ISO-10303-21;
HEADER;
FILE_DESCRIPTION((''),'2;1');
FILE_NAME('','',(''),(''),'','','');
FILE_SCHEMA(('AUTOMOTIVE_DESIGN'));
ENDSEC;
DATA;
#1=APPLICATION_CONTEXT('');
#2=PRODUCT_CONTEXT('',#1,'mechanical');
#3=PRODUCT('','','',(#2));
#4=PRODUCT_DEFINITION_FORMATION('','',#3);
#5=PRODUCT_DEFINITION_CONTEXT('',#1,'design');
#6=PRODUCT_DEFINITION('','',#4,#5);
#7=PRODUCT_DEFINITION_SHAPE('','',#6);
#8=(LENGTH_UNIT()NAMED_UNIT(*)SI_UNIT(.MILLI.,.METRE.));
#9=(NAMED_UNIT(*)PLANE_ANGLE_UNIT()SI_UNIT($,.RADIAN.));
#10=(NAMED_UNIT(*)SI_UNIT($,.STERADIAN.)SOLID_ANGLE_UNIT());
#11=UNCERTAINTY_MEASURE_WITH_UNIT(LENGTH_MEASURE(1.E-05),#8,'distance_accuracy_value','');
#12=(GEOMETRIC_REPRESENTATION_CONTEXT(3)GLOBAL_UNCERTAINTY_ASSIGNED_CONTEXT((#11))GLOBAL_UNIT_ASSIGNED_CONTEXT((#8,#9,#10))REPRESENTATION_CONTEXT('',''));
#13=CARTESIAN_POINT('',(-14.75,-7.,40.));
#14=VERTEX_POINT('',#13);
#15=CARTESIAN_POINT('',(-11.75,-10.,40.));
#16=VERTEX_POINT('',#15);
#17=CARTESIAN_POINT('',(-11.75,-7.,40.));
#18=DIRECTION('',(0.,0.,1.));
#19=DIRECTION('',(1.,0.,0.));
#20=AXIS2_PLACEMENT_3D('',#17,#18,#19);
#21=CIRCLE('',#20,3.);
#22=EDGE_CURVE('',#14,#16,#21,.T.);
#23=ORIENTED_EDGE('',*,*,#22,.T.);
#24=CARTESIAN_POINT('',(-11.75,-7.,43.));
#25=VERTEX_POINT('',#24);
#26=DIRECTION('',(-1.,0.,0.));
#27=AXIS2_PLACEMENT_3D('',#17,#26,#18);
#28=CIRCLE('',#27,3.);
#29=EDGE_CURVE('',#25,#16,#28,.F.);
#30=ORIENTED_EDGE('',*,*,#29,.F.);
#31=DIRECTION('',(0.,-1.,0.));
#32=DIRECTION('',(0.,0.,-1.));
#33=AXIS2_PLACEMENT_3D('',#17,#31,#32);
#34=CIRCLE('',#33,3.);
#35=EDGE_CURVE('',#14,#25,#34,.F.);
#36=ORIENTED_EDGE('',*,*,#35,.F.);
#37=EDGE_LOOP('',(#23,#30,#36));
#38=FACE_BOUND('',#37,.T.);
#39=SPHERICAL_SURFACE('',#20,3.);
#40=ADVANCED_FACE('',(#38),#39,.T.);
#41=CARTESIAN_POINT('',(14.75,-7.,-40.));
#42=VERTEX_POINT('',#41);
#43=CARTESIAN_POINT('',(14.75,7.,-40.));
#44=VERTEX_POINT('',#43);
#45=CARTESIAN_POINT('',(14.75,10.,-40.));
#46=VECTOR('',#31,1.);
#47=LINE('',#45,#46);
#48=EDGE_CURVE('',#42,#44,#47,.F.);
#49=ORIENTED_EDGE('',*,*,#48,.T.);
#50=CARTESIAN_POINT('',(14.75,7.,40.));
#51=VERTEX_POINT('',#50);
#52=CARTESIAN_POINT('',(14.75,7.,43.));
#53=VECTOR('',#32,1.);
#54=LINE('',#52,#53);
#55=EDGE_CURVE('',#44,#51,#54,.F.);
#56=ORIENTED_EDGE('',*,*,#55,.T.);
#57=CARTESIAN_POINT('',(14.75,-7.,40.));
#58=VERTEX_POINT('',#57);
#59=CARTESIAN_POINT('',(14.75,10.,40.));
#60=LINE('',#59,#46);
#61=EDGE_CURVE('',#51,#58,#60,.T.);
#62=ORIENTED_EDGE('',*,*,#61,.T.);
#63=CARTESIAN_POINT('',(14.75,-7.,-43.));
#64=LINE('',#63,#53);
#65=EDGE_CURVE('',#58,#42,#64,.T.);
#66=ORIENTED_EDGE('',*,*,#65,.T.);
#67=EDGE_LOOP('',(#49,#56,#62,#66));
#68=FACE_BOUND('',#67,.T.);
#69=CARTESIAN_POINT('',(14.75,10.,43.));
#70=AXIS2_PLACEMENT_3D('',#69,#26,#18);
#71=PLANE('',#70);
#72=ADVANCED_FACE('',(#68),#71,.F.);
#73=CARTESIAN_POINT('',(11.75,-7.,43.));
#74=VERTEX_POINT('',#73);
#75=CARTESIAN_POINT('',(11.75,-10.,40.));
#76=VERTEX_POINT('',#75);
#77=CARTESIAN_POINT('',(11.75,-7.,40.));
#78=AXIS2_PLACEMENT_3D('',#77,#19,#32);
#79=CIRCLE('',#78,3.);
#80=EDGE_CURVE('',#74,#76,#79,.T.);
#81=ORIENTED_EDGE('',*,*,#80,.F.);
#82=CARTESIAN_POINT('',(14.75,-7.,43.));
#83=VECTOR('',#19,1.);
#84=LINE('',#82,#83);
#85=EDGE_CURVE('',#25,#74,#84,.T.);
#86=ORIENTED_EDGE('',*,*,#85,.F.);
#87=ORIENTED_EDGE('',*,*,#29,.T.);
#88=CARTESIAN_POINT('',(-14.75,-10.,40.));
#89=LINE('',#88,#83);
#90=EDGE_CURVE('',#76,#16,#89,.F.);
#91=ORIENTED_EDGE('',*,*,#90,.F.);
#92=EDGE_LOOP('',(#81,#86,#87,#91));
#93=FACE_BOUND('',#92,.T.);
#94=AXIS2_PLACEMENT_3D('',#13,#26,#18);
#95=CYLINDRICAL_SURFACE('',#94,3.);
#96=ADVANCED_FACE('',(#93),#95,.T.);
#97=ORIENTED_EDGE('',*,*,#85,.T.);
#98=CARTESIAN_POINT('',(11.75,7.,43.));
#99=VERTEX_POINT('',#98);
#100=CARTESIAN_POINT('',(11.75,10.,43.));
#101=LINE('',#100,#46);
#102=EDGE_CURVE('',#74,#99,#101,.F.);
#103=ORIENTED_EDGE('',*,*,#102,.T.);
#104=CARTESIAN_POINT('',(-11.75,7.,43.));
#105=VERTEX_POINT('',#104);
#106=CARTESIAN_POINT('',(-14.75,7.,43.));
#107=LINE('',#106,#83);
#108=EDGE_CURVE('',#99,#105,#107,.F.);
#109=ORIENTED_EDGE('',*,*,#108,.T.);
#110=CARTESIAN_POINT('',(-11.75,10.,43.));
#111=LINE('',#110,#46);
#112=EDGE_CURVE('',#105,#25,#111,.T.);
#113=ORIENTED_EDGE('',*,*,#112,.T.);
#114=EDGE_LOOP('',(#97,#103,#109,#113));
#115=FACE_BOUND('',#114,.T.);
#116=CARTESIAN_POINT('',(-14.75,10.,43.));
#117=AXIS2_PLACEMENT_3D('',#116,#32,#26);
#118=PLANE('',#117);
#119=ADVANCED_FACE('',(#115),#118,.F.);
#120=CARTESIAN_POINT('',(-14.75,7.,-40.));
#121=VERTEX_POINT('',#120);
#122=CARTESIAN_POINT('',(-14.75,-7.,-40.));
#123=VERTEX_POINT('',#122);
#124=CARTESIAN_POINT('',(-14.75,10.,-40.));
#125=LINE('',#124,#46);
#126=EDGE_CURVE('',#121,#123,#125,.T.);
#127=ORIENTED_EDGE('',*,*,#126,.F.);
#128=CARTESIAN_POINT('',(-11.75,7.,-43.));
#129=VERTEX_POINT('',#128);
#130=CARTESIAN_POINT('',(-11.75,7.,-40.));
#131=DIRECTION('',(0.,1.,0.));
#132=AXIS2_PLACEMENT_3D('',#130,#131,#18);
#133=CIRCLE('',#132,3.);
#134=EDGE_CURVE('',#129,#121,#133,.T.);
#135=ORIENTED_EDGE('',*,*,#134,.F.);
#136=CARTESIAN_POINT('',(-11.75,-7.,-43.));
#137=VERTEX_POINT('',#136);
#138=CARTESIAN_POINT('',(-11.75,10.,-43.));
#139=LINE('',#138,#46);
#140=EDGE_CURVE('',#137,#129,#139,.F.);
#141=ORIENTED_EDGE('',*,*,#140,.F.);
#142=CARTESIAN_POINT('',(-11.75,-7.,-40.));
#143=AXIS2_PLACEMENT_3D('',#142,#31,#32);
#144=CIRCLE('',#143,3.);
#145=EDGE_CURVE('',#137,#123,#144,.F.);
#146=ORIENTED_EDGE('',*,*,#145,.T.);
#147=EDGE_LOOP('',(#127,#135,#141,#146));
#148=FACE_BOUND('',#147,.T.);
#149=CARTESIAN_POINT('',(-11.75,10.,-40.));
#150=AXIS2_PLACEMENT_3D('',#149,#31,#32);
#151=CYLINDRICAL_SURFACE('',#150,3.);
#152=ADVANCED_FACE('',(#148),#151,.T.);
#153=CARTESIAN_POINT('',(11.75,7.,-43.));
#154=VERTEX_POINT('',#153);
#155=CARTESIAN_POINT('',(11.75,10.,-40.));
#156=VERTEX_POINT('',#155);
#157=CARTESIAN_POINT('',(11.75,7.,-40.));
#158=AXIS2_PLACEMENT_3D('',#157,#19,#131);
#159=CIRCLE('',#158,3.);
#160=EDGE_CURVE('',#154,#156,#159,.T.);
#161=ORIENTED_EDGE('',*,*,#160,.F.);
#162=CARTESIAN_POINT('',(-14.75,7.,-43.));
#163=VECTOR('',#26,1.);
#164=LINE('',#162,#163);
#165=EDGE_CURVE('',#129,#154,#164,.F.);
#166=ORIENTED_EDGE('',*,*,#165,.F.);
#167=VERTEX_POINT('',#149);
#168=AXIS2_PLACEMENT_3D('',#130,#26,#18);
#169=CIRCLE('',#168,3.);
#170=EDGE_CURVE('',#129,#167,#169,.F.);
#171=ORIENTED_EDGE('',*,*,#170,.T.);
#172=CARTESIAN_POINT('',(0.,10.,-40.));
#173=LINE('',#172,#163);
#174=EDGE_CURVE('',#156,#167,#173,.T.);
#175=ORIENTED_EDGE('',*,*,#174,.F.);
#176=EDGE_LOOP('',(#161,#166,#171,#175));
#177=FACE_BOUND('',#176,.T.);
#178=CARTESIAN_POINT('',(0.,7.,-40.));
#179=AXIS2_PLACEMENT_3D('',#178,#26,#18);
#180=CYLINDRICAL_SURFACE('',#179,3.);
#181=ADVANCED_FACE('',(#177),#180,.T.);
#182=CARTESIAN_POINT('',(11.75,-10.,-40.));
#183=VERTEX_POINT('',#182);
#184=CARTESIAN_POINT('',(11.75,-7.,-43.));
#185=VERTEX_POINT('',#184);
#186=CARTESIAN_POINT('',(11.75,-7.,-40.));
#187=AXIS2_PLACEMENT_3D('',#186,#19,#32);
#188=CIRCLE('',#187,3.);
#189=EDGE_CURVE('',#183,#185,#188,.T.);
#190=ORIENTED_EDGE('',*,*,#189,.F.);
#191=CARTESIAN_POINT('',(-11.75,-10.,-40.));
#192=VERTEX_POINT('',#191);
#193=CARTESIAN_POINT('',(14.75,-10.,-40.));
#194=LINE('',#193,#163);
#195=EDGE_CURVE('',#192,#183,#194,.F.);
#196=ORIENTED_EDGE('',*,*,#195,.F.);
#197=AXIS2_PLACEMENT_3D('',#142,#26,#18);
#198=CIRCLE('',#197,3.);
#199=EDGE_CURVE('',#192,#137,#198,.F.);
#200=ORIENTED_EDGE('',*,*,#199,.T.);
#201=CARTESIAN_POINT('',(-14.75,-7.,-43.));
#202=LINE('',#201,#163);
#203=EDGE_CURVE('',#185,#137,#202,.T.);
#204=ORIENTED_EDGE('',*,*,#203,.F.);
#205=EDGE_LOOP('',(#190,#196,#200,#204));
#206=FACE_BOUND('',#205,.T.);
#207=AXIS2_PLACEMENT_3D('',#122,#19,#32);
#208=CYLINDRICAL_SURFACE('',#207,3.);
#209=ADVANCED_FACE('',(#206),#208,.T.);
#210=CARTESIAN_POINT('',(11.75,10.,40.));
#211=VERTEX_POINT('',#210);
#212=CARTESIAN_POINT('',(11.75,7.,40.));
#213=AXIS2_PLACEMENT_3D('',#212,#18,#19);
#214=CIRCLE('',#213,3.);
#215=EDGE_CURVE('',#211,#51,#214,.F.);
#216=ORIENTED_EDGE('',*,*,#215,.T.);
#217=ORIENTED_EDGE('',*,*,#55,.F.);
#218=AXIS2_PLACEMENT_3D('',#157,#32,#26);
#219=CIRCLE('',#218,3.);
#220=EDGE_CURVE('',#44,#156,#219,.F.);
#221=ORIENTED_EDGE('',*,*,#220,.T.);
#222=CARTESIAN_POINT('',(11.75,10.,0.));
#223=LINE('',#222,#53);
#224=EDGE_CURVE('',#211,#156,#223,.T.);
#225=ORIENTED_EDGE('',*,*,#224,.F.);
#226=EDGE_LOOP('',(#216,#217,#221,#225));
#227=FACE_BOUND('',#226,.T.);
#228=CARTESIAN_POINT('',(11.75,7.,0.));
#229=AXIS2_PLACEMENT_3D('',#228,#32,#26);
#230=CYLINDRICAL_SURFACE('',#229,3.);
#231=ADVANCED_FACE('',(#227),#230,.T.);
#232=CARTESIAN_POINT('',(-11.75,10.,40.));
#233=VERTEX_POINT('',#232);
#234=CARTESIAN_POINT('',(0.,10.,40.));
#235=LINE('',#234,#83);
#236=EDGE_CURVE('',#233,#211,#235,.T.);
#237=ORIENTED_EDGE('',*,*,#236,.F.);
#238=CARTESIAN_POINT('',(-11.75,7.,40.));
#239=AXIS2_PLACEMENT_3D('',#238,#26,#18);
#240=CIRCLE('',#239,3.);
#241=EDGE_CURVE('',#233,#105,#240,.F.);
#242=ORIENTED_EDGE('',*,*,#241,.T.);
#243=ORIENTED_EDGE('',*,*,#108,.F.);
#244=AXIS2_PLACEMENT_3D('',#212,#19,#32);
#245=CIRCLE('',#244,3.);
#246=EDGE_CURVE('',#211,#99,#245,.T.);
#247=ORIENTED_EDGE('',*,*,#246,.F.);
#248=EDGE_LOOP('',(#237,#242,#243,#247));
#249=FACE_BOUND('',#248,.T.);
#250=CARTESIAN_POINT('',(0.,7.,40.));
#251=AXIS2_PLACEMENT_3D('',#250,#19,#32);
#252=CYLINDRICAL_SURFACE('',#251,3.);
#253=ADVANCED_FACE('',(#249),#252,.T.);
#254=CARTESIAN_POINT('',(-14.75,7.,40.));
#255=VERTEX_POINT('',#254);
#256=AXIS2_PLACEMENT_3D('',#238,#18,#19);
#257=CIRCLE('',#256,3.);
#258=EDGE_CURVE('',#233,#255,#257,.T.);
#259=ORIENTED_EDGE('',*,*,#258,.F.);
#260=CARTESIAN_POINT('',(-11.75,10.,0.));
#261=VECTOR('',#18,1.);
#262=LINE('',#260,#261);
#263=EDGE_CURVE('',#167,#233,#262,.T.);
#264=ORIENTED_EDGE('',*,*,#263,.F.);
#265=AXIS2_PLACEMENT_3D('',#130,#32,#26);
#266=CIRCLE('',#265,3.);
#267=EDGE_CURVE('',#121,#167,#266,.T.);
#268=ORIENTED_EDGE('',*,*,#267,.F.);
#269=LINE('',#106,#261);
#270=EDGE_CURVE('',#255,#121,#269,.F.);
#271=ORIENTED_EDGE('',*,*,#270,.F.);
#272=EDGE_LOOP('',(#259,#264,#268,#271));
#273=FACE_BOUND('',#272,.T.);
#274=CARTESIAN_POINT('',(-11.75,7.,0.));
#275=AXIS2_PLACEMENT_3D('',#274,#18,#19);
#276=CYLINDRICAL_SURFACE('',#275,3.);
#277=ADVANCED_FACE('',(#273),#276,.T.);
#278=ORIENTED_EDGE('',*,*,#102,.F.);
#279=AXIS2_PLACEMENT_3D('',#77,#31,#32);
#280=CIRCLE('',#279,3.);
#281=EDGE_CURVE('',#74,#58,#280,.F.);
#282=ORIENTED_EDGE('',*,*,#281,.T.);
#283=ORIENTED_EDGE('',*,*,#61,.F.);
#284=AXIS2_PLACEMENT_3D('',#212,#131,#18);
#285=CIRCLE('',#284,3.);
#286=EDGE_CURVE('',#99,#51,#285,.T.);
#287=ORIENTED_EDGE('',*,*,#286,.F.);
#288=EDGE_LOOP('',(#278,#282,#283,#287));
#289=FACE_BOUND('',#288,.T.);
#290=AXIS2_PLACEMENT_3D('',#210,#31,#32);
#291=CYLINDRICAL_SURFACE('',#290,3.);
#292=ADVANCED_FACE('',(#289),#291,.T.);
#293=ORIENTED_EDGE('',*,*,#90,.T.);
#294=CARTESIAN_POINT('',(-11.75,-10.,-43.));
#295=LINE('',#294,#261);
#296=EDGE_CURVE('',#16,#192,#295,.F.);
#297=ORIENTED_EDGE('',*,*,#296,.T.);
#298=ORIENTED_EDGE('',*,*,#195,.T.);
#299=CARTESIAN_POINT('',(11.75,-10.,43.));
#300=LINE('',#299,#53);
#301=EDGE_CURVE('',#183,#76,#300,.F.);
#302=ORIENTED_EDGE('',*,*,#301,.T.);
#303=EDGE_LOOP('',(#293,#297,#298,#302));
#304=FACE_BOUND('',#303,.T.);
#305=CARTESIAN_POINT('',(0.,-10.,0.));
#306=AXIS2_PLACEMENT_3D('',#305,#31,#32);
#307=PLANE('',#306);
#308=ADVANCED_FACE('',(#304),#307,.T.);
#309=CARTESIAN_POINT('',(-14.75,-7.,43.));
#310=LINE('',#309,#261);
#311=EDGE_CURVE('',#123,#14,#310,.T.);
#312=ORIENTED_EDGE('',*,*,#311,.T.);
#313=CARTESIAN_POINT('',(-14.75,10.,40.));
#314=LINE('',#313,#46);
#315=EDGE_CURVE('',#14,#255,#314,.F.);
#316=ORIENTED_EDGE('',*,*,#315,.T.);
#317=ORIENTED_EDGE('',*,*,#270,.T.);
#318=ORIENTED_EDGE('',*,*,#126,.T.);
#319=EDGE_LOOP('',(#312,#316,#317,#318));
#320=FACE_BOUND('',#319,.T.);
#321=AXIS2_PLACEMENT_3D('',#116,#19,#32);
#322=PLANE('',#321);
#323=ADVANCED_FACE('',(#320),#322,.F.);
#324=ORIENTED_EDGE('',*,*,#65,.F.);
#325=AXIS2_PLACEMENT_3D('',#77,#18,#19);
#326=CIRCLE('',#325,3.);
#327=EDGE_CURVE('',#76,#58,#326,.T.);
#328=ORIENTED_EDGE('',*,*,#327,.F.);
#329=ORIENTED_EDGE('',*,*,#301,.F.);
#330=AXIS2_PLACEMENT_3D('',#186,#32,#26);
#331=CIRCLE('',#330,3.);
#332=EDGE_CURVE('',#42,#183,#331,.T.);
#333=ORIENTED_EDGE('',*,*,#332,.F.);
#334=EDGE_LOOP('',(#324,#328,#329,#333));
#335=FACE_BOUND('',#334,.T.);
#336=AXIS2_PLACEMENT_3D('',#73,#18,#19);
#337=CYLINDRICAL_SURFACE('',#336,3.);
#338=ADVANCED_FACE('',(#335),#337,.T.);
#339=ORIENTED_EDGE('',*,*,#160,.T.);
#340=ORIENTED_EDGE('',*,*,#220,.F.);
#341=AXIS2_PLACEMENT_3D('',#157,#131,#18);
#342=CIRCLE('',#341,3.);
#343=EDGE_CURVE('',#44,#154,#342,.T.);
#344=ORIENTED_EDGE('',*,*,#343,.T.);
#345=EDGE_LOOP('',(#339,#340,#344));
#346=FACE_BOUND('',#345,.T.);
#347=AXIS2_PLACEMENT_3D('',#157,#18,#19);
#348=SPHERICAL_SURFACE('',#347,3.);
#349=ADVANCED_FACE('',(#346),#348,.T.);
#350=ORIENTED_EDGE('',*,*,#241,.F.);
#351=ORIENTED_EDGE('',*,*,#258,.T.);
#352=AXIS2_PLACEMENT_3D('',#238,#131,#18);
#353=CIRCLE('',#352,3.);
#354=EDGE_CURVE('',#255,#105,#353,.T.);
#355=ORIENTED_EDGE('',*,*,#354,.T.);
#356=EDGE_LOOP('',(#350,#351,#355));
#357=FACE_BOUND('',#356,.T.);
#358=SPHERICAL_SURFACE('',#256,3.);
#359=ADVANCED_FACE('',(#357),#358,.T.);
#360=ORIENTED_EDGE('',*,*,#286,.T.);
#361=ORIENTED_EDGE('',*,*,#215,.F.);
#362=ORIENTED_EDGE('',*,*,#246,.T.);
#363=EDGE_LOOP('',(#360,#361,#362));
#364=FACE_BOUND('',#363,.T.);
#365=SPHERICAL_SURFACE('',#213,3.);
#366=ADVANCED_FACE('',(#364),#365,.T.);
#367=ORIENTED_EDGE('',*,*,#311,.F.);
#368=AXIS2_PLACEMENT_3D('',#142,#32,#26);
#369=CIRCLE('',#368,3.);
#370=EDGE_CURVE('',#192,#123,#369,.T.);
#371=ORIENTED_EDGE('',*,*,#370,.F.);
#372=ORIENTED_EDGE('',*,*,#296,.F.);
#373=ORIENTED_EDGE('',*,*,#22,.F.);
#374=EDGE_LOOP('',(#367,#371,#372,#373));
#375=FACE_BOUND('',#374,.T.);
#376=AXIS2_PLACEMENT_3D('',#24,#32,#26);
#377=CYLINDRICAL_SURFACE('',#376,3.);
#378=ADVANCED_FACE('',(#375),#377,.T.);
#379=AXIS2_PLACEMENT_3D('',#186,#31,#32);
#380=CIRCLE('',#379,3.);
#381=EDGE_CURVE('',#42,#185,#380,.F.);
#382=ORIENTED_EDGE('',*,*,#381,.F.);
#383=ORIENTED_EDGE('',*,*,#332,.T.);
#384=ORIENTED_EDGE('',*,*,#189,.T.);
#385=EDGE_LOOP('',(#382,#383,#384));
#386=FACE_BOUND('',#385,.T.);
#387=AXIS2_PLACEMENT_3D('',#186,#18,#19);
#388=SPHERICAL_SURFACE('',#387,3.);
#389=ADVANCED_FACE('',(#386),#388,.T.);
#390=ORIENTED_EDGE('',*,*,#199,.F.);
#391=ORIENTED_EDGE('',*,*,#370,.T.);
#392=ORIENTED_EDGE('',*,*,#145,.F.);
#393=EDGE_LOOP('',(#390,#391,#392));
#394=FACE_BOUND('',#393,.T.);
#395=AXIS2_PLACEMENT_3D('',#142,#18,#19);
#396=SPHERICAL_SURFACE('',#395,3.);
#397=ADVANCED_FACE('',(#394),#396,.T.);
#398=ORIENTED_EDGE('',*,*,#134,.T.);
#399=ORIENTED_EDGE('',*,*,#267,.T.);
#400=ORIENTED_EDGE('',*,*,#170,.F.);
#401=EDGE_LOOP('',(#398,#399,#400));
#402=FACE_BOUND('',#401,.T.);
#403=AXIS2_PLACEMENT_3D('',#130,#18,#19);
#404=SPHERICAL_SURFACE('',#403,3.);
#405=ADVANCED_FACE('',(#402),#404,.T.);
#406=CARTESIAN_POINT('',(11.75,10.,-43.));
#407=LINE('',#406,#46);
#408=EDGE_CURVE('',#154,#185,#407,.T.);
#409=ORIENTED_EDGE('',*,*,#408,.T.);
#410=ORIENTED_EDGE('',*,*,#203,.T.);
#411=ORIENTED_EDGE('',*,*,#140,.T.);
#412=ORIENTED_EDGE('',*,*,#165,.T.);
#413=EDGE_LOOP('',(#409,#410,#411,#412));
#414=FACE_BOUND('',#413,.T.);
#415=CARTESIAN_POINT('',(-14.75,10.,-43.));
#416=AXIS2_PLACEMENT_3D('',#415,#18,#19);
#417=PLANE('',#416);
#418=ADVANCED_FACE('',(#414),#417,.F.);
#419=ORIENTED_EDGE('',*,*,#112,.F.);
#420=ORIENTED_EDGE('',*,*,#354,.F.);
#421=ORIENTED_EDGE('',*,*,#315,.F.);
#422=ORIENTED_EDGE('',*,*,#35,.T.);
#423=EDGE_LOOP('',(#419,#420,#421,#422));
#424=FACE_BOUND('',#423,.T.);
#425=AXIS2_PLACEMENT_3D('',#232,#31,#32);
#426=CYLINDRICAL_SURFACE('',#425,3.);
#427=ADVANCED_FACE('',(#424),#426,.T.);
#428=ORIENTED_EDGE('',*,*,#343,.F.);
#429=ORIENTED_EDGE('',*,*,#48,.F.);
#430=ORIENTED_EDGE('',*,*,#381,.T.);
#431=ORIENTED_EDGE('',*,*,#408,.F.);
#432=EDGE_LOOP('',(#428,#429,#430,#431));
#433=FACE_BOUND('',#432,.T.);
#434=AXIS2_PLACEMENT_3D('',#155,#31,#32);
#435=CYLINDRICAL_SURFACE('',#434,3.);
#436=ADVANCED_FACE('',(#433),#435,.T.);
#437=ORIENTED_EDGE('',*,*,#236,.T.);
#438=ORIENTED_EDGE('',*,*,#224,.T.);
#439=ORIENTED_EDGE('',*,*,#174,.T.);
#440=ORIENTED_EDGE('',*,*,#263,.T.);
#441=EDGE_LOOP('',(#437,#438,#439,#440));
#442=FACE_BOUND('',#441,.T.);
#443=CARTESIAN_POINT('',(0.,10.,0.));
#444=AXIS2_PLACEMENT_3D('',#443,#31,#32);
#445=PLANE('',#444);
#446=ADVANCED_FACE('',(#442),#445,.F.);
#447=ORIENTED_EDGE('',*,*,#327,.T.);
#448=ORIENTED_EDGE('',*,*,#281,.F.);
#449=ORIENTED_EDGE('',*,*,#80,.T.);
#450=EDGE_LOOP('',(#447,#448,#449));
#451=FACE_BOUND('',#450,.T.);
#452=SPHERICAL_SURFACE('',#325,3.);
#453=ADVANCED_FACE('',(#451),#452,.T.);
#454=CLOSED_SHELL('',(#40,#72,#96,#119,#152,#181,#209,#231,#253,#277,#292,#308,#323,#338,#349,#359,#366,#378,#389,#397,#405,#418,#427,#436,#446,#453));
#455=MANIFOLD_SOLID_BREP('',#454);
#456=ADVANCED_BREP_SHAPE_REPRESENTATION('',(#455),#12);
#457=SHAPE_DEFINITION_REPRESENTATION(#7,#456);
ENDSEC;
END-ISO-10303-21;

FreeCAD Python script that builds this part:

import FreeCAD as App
import Part
import Sketcher

V = App.Vector
Q = App.Units.Quantity


def add_polygon(sketch, points):
    """Adds a closed chain of lines whose ends are joined by coincident constraints."""
    first, n = sketch.GeometryCount, len(points)
    for a, b in zip(points, points[1:] + points[:1]):
        sketch.addGeometry(Part.LineSegment(App.Vector(*a, 0), App.Vector(*b, 0)), False)
    for i in range(n):
        sketch.addConstraint(Sketcher.Constraint("Coincident", first + i, 2, first + (i + 1) % n, 1))

doc = App.newDocument("Part")
body = doc.addObject("PartDesign::Body", "Body")

sketch1 = body.newObject("Sketcher::SketchObject", "Sketch")
sketch1.AttachmentSupport = (doc.getObject("XZ_Plane"), [""])
sketch1.MapMode = "FlatFace"
add_polygon(sketch1, [(-15, -43), (-15, 43), (15, 43), (15, -43)])
sketch1.addConstraint(Sketcher.Constraint("Vertical", 0))
sketch1.addConstraint(Sketcher.Constraint("Horizontal", 1))
sketch1.addConstraint(Sketcher.Constraint("Vertical", 2))
sketch1.addConstraint(Sketcher.Constraint("Horizontal", 3))
sketch1.addConstraint(Sketcher.Constraint("Symmetric", 0, 2, 2, 2, -1, 1))
sketch1.addConstraint(Sketcher.Constraint("DistanceY", 0, 1, 0, 2, Q("86 mm")))
sketch1.addConstraint(Sketcher.Constraint("DistanceX", 1, 1, 1, 2, Q("29.5 mm")))
pad1 = body.newObject("PartDesign::Pad", "Pad")
pad1.Profile = sketch1
pad1.Length = 20
pad1.Midplane = True
doc.recompute()

fillet = body.newObject("PartDesign::Fillet", "Fillet")
fillet.Base = (pad1, ["Edge1"])
fillet.UseAllEdges = True
fillet.Radius = 3

doc.recompute()
